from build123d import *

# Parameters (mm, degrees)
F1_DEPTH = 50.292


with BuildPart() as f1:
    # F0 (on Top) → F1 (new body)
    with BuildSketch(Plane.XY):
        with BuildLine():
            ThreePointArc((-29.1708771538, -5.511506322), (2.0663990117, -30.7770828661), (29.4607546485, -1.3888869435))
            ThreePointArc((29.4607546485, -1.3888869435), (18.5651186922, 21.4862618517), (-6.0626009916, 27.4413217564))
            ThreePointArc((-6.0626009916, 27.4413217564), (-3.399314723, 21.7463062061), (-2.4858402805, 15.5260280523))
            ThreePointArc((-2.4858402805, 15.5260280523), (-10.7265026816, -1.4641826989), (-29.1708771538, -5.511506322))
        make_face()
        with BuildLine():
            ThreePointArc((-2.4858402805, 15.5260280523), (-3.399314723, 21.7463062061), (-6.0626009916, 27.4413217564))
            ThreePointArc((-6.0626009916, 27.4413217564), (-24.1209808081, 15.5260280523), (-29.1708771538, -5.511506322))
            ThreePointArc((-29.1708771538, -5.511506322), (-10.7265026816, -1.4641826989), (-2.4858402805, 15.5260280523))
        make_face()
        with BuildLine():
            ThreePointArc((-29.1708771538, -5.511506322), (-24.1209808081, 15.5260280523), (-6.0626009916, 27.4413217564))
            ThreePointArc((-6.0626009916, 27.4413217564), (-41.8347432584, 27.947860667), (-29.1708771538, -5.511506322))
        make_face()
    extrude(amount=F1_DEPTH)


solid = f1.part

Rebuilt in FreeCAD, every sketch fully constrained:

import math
import FreeCAD as App
import Part
import Sketcher
Q = App.Units.Quantity

doc = App.newDocument("Part")
body = doc.addObject("PartDesign::Body", "Body")

sketch1 = body.newObject("Sketcher::SketchObject", "Sketch")
sketch1.AttachmentSupport = (doc.getObject("XY_Plane"), [""])
sketch1.MapMode = "FlatFace"
sketch1.addGeometry(Part.ArcOfCircle(Part.Circle(App.Vector(0, -1, 0), App.Vector(0, 0, 1), 29), math.radians(-172), math.radians(0)), False)
sketch1.addGeometry(Part.ArcOfCircle(Part.Circle(App.Vector(0, -1, 0), App.Vector(0, 0, 1), 29), math.radians(0), math.radians(102)), False)
sketch1.addGeometry(Part.ArcOfCircle(Part.Circle(App.Vector(-24, 16, 0), App.Vector(0, 0, 1), 22), math.radians(33), math.radians(257)), False)
sketch1.addConstraint(Sketcher.Constraint("Tangent", 0, 2, 1, 1))
sketch1.addConstraint(Sketcher.Constraint("Coincident", 1, 2, 2, 1))
sketch1.addConstraint(Sketcher.Constraint("Coincident", 2, 2, 0, 1))
sketch1.addConstraint(Sketcher.Constraint("Equal", 0, 1))
sketch1.addConstraint(Sketcher.Constraint("PointOnObject", 0, 3, -2))
sketch1.addConstraint(Sketcher.Constraint("Horizontal", 1, 3, 0, 2))
sketch1.addConstraint(Sketcher.Constraint("Radius", 2, Q("21.635141 mm")))
sketch1.addConstraint(Sketcher.Constraint("Radius", 0, Q("29.460755 mm")))
sketch1.addConstraint(Sketcher.Constraint("DistanceX", 1, 2, -1, 1, Q("6.062601 mm")))
sketch1.addConstraint(Sketcher.Constraint("DistanceX", 2, 3, -1, 1, Q("24.120981 mm")))
sketch1.addConstraint(Sketcher.Constraint("DistanceY", -1, 1, 2, 3, Q("15.526028 mm")))
pad1 = body.newObject("PartDesign::Pad", "Pad")
pad1.Profile = sketch1
pad1.Length = Q("1.98 in")

doc.recompute()
